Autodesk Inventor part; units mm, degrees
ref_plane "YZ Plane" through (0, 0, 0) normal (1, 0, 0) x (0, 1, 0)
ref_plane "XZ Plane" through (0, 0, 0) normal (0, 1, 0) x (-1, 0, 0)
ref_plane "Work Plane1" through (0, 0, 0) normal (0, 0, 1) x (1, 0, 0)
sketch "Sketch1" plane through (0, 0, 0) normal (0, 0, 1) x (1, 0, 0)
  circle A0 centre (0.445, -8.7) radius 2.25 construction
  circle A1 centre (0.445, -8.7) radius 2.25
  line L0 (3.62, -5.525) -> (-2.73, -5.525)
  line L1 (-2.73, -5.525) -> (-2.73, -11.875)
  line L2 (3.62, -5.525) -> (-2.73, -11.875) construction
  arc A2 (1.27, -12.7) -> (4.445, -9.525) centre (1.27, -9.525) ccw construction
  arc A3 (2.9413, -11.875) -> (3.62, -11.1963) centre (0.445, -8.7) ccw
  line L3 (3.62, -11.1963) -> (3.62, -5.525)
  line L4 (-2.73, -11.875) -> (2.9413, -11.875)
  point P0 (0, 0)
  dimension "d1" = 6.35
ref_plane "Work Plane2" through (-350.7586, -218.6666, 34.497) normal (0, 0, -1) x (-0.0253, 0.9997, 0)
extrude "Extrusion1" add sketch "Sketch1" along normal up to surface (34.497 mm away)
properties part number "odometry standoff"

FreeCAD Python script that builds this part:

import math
import FreeCAD as App
import Part
import Sketcher
Q = App.Units.Quantity

doc = App.newDocument("Part")
body = doc.addObject("PartDesign::Body", "Body")

# Sketch on XY plane
sketch1 = doc.addObject("Sketcher::SketchObject", "Sketch")
body.addObject(sketch1)
sketch1.AttachmentSupport = (doc.XY_Plane, [""])
sketch1.MapMode = "FlatFace"
sketch1.addGeometry(Part.LineSegment(App.Vector(3.6, -11.2, 0), App.Vector(3.6, -5.5, 0)), False)
sketch1.addGeometry(Part.LineSegment(App.Vector(3.6, -5.5, 0), App.Vector(-2.7, -5.5, 0)), False)
sketch1.addGeometry(Part.LineSegment(App.Vector(-2.7, -5.5, 0), App.Vector(-2.7, -11.9, 0)), False)
sketch1.addGeometry(Part.LineSegment(App.Vector(-2.7, -11.9, 0), App.Vector(2.9, -11.9, 0)), False)
sketch1.addGeometry(Part.ArcOfCircle(Part.Circle(App.Vector(0.4, -8.7, 0), App.Vector(0, 0, 1), 4), math.radians(-51.82), math.radians(-38.18)), False)
sketch1.addGeometry(Part.Circle(App.Vector(0.4, -8.7, 0), App.Vector(0, 0, 1), 2.2), False)
sketch1.addConstraint(Sketcher.Constraint("Coincident", 0, 2, 1, 1))
sketch1.addConstraint(Sketcher.Constraint("Coincident", 1, 2, 2, 1))
sketch1.addConstraint(Sketcher.Constraint("Coincident", 2, 2, 3, 1))
sketch1.addConstraint(Sketcher.Constraint("Coincident", 3, 2, 4, 1))
sketch1.addConstraint(Sketcher.Constraint("Coincident", 4, 2, 0, 1))
sketch1.addConstraint(Sketcher.Constraint("Vertical", 0))
sketch1.addConstraint(Sketcher.Constraint("Horizontal", 1))
sketch1.addConstraint(Sketcher.Constraint("Vertical", 2))
sketch1.addConstraint(Sketcher.Constraint("Horizontal", 3))
sketch1.addConstraint(Sketcher.Constraint("Coincident", 5, 3, 4, 3))
sketch1.addConstraint(Sketcher.Constraint("Equal", 3, 0))
sketch1.addConstraint(Sketcher.Constraint("Equal", 1, 2))
sketch1.addConstraint(Sketcher.Constraint("Diameter", 5, Q("4.5 mm")))
sketch1.addConstraint(Sketcher.Constraint("DistanceX", 1, 2, 1, 1, Q("6.35 mm")))
sketch1.addConstraint(Sketcher.Constraint("DistanceY", 4, 3, -1, 1, Q("8.7 mm")))
sketch1.addConstraint(Sketcher.Constraint("Radius", 4, Q("4.0388 mm")))
sketch1.addConstraint(Sketcher.Constraint("DistanceX", -1, 1, 0, 2, Q("3.62 mm")))
sketch1.addConstraint(Sketcher.Constraint("DistanceX", 3, 1, 3, 2, Q("5.6713 mm")))
pad1 = doc.addObject("PartDesign::Pad", "Pad")
body.addObject(pad1)
pad1.Profile = sketch1
pad1.Length = 34.497

doc.recompute()
